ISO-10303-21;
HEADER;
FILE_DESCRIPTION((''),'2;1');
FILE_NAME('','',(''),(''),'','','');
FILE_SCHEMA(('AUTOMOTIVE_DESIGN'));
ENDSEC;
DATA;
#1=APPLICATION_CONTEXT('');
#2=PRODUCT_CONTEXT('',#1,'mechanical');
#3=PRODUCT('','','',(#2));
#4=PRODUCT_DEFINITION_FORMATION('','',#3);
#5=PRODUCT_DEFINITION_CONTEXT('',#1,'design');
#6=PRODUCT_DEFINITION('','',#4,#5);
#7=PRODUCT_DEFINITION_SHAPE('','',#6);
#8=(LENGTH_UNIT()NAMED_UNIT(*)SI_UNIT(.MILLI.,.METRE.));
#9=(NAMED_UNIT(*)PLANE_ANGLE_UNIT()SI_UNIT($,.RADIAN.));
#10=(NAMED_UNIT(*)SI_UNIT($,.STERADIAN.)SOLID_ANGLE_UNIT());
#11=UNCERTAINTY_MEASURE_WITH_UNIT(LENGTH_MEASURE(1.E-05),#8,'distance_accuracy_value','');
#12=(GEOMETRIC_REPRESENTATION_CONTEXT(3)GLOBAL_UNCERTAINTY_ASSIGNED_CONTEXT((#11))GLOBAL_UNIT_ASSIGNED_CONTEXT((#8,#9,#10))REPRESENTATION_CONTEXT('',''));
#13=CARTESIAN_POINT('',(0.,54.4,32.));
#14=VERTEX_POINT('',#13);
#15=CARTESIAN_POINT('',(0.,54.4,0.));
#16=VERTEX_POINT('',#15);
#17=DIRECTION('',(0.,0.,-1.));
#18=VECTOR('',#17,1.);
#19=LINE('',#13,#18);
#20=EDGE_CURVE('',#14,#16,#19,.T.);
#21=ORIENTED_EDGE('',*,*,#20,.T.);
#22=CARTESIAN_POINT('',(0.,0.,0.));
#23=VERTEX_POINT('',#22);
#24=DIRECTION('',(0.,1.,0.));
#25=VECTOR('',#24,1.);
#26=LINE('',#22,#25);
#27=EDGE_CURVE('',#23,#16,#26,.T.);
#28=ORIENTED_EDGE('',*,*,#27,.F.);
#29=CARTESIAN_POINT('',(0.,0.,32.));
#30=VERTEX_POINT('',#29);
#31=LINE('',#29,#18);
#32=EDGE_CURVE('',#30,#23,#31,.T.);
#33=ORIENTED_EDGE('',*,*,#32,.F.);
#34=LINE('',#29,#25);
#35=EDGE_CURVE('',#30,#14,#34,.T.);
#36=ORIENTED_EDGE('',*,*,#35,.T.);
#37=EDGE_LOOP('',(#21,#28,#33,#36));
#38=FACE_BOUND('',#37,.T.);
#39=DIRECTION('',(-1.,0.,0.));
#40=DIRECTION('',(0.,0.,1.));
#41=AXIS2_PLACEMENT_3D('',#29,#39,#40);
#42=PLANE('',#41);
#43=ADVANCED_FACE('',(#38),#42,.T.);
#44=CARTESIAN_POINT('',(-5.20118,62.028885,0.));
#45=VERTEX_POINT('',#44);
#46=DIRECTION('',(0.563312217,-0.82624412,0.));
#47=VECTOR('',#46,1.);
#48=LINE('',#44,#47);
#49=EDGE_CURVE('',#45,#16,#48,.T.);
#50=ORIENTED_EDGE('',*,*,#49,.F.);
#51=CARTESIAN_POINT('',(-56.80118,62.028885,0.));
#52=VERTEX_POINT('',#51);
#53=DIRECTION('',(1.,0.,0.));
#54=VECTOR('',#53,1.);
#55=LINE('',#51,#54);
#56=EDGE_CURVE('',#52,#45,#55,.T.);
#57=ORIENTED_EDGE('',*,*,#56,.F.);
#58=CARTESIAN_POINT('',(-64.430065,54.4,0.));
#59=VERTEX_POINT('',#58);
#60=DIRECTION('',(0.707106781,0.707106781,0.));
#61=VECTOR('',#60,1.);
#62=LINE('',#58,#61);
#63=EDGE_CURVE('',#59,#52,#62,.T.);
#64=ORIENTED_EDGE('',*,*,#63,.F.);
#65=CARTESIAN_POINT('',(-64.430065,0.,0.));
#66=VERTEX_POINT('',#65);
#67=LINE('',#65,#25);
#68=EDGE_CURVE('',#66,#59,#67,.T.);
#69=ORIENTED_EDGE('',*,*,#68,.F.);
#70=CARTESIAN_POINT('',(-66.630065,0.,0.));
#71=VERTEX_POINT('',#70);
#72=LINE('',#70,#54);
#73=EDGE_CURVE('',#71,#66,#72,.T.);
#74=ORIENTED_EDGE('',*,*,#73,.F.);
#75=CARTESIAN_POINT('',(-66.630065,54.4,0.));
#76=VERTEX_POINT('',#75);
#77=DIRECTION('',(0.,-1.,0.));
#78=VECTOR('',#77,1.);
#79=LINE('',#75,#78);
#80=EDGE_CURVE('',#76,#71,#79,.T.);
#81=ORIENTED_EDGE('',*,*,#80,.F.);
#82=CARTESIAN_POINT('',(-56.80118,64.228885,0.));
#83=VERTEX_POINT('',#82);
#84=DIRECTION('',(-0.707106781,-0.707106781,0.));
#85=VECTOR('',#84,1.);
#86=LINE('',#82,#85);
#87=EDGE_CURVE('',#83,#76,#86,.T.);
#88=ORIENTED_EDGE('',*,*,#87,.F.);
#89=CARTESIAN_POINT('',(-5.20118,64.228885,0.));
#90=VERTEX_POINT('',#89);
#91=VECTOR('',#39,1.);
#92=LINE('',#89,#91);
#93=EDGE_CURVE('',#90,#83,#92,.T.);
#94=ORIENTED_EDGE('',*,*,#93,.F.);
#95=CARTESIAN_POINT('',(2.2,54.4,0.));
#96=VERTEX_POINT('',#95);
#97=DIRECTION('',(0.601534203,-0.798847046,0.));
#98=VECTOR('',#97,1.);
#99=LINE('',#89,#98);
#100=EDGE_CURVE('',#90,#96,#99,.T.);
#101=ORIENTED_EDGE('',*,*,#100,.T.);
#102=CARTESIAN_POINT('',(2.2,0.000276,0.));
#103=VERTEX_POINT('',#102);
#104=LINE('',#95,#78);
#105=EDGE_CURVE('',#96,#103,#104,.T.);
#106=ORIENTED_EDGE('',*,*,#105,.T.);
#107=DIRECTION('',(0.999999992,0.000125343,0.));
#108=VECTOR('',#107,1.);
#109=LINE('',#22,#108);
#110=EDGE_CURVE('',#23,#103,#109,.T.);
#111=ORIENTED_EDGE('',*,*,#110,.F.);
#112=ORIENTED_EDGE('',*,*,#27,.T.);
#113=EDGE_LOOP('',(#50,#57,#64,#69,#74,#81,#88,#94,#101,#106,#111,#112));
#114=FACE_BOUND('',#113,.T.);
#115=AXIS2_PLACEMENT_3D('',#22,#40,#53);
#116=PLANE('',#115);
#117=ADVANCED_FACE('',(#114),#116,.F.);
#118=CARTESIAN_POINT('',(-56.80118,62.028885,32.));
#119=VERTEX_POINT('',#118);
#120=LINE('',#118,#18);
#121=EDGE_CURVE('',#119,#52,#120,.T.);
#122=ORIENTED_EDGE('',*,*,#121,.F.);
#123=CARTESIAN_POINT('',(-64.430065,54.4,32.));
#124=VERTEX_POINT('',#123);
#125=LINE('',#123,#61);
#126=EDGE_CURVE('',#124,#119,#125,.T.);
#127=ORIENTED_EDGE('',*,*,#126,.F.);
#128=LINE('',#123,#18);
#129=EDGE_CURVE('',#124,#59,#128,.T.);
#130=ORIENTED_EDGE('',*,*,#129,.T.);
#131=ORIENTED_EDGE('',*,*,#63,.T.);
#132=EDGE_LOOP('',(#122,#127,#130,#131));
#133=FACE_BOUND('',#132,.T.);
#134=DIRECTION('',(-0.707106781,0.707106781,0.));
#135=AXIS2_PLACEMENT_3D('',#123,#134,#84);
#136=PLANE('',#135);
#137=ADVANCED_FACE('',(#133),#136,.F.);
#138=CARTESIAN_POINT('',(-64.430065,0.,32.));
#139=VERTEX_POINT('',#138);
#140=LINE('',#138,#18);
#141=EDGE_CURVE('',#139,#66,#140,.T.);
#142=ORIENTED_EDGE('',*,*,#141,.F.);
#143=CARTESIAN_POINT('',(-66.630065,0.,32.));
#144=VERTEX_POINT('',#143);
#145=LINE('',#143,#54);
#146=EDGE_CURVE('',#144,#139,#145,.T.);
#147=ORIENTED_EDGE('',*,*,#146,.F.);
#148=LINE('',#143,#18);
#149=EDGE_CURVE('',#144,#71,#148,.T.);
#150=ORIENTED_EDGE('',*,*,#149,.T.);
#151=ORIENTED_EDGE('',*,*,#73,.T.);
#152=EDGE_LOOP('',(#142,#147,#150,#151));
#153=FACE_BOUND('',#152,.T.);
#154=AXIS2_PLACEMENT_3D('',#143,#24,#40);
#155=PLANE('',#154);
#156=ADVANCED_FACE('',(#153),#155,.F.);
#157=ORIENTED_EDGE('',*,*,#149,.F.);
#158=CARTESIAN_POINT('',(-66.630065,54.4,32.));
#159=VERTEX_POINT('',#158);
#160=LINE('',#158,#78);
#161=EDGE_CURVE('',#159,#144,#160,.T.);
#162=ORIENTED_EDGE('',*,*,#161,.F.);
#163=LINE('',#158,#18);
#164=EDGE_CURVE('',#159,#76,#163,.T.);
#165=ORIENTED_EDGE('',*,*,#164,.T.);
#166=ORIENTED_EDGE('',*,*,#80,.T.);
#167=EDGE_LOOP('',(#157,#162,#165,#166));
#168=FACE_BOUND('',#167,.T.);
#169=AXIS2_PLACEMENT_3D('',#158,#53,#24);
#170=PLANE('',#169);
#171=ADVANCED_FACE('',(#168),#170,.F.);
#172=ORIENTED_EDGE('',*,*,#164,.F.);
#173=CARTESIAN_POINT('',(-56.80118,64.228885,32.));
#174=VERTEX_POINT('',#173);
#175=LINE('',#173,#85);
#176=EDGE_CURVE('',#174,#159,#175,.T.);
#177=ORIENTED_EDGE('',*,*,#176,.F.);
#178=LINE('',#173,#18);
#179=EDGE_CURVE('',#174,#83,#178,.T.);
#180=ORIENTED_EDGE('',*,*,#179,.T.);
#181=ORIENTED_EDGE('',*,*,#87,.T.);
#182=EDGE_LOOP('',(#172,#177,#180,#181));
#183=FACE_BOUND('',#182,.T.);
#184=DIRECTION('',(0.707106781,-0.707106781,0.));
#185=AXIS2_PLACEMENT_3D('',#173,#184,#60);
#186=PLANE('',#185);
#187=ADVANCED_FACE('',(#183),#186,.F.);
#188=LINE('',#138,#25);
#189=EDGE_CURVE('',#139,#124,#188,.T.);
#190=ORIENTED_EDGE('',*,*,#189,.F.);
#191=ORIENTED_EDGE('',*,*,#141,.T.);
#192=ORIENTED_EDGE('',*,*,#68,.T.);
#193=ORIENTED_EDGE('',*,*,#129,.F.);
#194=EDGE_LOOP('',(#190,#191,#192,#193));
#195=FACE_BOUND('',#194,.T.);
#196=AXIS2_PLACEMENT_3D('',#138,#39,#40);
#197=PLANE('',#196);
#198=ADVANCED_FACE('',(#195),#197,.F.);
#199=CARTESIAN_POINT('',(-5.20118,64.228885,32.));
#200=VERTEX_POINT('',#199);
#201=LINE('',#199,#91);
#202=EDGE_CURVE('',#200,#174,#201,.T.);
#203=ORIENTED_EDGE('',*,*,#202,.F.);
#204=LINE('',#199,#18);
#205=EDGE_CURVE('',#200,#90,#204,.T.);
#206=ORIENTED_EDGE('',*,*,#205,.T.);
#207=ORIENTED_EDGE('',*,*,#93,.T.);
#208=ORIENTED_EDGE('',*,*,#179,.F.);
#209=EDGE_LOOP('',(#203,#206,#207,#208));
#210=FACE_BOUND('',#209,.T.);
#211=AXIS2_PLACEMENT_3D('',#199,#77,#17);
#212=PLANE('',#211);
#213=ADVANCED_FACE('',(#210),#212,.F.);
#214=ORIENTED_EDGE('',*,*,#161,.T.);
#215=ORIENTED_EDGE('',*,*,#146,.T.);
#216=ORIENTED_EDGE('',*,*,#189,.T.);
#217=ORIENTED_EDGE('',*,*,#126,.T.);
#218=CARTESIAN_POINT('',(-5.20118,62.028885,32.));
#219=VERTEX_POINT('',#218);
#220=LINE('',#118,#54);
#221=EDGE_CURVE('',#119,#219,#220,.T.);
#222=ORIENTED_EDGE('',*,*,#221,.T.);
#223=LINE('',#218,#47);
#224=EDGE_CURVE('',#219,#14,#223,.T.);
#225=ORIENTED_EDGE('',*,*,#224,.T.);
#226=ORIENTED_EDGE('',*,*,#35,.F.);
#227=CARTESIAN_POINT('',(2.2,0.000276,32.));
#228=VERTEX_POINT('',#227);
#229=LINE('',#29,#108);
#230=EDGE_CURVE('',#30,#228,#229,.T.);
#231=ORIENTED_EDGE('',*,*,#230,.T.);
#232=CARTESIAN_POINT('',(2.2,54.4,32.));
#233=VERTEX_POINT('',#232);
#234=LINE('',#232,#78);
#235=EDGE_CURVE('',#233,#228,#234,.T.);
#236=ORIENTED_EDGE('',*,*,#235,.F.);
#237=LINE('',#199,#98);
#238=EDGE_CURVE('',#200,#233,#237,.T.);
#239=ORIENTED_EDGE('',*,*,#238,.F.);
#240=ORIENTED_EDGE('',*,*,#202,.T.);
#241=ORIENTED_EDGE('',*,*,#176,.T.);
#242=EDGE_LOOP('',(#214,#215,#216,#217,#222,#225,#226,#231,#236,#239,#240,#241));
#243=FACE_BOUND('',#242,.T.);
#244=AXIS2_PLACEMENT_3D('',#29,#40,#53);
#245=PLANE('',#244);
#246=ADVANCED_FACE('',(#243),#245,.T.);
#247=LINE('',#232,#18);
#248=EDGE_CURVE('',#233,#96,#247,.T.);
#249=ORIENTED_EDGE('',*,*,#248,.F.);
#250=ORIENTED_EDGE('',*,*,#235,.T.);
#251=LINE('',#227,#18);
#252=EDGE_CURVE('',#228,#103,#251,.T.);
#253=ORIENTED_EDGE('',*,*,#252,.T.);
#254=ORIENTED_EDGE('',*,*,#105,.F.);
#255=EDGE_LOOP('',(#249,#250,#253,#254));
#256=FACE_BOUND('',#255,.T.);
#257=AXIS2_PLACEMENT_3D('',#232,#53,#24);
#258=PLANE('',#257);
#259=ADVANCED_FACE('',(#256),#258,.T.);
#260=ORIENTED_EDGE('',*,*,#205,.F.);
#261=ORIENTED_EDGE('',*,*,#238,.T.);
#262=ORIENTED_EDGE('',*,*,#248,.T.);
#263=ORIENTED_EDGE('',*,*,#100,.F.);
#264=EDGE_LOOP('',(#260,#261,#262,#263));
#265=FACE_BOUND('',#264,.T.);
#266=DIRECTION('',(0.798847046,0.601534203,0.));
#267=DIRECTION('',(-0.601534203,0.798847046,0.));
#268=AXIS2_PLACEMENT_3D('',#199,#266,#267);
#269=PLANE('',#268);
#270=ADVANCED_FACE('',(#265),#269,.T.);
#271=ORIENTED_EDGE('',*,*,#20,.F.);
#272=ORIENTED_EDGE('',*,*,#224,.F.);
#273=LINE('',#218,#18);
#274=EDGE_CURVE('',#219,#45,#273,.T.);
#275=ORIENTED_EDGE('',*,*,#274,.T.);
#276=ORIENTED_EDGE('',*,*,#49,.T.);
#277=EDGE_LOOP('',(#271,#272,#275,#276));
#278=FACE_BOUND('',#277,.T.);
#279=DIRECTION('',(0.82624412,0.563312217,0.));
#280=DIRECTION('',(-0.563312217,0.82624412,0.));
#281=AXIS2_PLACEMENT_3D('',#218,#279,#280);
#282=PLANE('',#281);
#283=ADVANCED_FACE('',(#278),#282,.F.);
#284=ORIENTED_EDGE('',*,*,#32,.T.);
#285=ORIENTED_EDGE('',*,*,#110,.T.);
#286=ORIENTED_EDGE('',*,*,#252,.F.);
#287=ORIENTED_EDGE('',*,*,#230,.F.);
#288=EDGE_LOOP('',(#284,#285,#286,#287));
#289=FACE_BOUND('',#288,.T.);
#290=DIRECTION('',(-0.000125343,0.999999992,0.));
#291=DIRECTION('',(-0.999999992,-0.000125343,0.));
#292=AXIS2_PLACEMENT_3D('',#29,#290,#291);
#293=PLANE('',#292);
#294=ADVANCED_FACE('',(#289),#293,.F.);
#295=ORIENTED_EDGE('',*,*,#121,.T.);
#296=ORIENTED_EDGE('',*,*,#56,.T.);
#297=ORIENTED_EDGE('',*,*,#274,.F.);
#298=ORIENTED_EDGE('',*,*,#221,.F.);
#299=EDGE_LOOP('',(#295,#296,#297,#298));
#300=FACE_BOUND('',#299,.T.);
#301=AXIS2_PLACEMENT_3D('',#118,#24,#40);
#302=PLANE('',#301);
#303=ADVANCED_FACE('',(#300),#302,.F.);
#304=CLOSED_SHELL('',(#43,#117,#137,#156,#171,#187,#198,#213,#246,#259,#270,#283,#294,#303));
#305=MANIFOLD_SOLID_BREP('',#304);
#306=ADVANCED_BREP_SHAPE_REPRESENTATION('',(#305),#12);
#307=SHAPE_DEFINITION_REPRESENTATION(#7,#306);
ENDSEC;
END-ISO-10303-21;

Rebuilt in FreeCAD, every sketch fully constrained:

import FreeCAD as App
import Part
import Sketcher
from FreeCAD import Vector
Q = App.Units.Quantity

doc = App.newDocument("Part")
body = doc.addObject("PartDesign::Body", "Body")

sketch1 = body.newObject("Sketcher::SketchObject", "Sketch")
sketch1.AttachmentSupport = (doc.getObject("XY_Plane"), [""])
sketch1.MapMode = "FlatFace"
sketch1.addGeometry(Part.LineSegment(Vector(0, 54.4, 0), Vector(0, 0, 0)), False)
sketch1.addGeometry(Part.LineSegment(Vector(0, 0, 0), Vector(2.2, 0, 0)), False)
sketch1.addGeometry(Part.LineSegment(Vector(2.2, 0, 0), Vector(2.2, 54.4, 0)), False)
sketch1.addGeometry(Part.LineSegment(Vector(2.2, 54.4, 0), Vector(-5.2, 64.2, 0)), False)
sketch1.addGeometry(Part.LineSegment(Vector(-5.2, 64.2, 0), Vector(-56.8, 64.2, 0)), False)
sketch1.addGeometry(Part.LineSegment(Vector(-56.8, 64.2, 0), Vector(-66.6, 54.4, 0)), False)
sketch1.addGeometry(Part.LineSegment(Vector(-66.6, 54.4, 0), Vector(-66.6, 0, 0)), False)
sketch1.addGeometry(Part.LineSegment(Vector(-66.6, 0, 0), Vector(-64.4, 0, 0)), False)
sketch1.addGeometry(Part.LineSegment(Vector(-64.4, 0, 0), Vector(-64.4, 54.4, 0)), False)
sketch1.addGeometry(Part.LineSegment(Vector(-64.4, 54.4, 0), Vector(-56.8, 62, 0)), False)
sketch1.addGeometry(Part.LineSegment(Vector(-56.8, 62, 0), Vector(-5.2, 62, 0)), False)
sketch1.addGeometry(Part.LineSegment(Vector(-5.2, 62, 0), Vector(0, 54.4, 0)), False)
sketch1.addConstraint(Sketcher.Constraint("Coincident", 0, 2, 1, 1))
sketch1.addConstraint(Sketcher.Constraint("Coincident", 1, 2, 2, 1))
sketch1.addConstraint(Sketcher.Constraint("Coincident", 2, 2, 3, 1))
sketch1.addConstraint(Sketcher.Constraint("Coincident", 3, 2, 4, 1))
sketch1.addConstraint(Sketcher.Constraint("Coincident", 4, 2, 5, 1))
sketch1.addConstraint(Sketcher.Constraint("Coincident", 5, 2, 6, 1))
sketch1.addConstraint(Sketcher.Constraint("Coincident", 6, 2, 7, 1))
sketch1.addConstraint(Sketcher.Constraint("Coincident", 7, 2, 8, 1))
sketch1.addConstraint(Sketcher.Constraint("Coincident", 8, 2, 9, 1))
sketch1.addConstraint(Sketcher.Constraint("Coincident", 9, 2, 10, 1))
sketch1.addConstraint(Sketcher.Constraint("Coincident", 10, 2, 11, 1))
sketch1.addConstraint(Sketcher.Constraint("Coincident", 11, 2, 0, 1))
sketch1.addConstraint(Sketcher.Constraint("Vertical", 0))
sketch1.addConstraint(Sketcher.Constraint("Vertical", 2))
sketch1.addConstraint(Sketcher.Constraint("Horizontal", 4))
sketch1.addConstraint(Sketcher.Constraint("Vertical", 6))
sketch1.addConstraint(Sketcher.Constraint("Horizontal", 7))
sketch1.addConstraint(Sketcher.Constraint("Vertical", 8))
sketch1.addConstraint(Sketcher.Constraint("Horizontal", 10))
sketch1.addConstraint(Sketcher.Constraint("Coincident", 0, 2, -1, 1))
sketch1.addConstraint(Sketcher.Constraint("PointOnObject", 6, 2, -1))
sketch1.addConstraint(Sketcher.Constraint("Parallel", 5, 9))
sketch1.addConstraint(Sketcher.Constraint("Horizontal", 2, 2, 5, 2))
sketch1.addConstraint(Sketcher.Constraint("Horizontal", 5, 2, 8, 2))
sketch1.addConstraint(Sketcher.Constraint("Horizontal", 8, 2, 11, 2))
sketch1.addConstraint(Sketcher.Constraint("Vertical", 4, 2, 9, 2))
sketch1.addConstraint(Sketcher.Constraint("Vertical", 3, 2, 10, 2))
sketch1.addConstraint(Sketcher.Constraint("Angle", 5, Q("-135 deg")))
sketch1.addConstraint(Sketcher.Constraint("DistanceX", 4, 2, 4, 1, 51.6))
sketch1.addConstraint(Sketcher.Constraint("DistanceX", 7, 1, 7, 2, 2.2))
sketch1.addConstraint(Sketcher.Constraint("DistanceY", 0, 2, 0, 1, 54.4))
sketch1.addConstraint(Sketcher.Constraint("Distance", 1, 2.2))
sketch1.addConstraint(Sketcher.Constraint("Distance", 3, 12.303839))
sketch1.addConstraint(Sketcher.Constraint("Distance", 11, 9.23321))
sketch1.addConstraint(Sketcher.Constraint("DistanceY", 2, 1, 2, 2, 54.399724))
pad1 = body.newObject("PartDesign::Pad", "Pad")
pad1.Profile = sketch1
pad1.Length = 32

doc.recompute()
